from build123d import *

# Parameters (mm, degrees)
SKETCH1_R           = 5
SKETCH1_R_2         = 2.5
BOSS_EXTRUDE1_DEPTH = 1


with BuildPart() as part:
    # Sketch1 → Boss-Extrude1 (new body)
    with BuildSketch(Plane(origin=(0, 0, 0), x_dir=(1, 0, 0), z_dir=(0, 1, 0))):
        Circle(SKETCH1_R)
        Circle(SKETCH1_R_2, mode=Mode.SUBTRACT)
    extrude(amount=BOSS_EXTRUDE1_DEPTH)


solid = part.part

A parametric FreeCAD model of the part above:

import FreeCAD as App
import Part
import Sketcher

V = App.Vector

doc = App.newDocument("Part")
body = doc.addObject("PartDesign::Body", "Body")

sketch1 = body.newObject("Sketcher::SketchObject", "Sketch")
sketch1.AttachmentSupport = (doc.getObject("XZ_Plane"), [""])
sketch1.MapMode = "FlatFace"
sketch1.addGeometry([
    Part.Circle(V(0, 0, 0), V(0, 0, 1), 5),
    Part.Circle(V(0, 0, 0), V(0, 0, 1), 2.5),
], False)
sketch1.addConstraint([
    Sketcher.Constraint("Coincident", 0, 3, -1, 1),
    Sketcher.Constraint("Coincident", 1, 3, -1, 1),
    Sketcher.Constraint("Diameter", 0, 10.0),
    Sketcher.Constraint("Diameter", 1, 5.0),
])
pad1 = body.newObject("PartDesign::Pad", "Pad")
pad1.Profile = sketch1
pad1.Length = 1
pad1.Reversed = True

doc.recompute()
